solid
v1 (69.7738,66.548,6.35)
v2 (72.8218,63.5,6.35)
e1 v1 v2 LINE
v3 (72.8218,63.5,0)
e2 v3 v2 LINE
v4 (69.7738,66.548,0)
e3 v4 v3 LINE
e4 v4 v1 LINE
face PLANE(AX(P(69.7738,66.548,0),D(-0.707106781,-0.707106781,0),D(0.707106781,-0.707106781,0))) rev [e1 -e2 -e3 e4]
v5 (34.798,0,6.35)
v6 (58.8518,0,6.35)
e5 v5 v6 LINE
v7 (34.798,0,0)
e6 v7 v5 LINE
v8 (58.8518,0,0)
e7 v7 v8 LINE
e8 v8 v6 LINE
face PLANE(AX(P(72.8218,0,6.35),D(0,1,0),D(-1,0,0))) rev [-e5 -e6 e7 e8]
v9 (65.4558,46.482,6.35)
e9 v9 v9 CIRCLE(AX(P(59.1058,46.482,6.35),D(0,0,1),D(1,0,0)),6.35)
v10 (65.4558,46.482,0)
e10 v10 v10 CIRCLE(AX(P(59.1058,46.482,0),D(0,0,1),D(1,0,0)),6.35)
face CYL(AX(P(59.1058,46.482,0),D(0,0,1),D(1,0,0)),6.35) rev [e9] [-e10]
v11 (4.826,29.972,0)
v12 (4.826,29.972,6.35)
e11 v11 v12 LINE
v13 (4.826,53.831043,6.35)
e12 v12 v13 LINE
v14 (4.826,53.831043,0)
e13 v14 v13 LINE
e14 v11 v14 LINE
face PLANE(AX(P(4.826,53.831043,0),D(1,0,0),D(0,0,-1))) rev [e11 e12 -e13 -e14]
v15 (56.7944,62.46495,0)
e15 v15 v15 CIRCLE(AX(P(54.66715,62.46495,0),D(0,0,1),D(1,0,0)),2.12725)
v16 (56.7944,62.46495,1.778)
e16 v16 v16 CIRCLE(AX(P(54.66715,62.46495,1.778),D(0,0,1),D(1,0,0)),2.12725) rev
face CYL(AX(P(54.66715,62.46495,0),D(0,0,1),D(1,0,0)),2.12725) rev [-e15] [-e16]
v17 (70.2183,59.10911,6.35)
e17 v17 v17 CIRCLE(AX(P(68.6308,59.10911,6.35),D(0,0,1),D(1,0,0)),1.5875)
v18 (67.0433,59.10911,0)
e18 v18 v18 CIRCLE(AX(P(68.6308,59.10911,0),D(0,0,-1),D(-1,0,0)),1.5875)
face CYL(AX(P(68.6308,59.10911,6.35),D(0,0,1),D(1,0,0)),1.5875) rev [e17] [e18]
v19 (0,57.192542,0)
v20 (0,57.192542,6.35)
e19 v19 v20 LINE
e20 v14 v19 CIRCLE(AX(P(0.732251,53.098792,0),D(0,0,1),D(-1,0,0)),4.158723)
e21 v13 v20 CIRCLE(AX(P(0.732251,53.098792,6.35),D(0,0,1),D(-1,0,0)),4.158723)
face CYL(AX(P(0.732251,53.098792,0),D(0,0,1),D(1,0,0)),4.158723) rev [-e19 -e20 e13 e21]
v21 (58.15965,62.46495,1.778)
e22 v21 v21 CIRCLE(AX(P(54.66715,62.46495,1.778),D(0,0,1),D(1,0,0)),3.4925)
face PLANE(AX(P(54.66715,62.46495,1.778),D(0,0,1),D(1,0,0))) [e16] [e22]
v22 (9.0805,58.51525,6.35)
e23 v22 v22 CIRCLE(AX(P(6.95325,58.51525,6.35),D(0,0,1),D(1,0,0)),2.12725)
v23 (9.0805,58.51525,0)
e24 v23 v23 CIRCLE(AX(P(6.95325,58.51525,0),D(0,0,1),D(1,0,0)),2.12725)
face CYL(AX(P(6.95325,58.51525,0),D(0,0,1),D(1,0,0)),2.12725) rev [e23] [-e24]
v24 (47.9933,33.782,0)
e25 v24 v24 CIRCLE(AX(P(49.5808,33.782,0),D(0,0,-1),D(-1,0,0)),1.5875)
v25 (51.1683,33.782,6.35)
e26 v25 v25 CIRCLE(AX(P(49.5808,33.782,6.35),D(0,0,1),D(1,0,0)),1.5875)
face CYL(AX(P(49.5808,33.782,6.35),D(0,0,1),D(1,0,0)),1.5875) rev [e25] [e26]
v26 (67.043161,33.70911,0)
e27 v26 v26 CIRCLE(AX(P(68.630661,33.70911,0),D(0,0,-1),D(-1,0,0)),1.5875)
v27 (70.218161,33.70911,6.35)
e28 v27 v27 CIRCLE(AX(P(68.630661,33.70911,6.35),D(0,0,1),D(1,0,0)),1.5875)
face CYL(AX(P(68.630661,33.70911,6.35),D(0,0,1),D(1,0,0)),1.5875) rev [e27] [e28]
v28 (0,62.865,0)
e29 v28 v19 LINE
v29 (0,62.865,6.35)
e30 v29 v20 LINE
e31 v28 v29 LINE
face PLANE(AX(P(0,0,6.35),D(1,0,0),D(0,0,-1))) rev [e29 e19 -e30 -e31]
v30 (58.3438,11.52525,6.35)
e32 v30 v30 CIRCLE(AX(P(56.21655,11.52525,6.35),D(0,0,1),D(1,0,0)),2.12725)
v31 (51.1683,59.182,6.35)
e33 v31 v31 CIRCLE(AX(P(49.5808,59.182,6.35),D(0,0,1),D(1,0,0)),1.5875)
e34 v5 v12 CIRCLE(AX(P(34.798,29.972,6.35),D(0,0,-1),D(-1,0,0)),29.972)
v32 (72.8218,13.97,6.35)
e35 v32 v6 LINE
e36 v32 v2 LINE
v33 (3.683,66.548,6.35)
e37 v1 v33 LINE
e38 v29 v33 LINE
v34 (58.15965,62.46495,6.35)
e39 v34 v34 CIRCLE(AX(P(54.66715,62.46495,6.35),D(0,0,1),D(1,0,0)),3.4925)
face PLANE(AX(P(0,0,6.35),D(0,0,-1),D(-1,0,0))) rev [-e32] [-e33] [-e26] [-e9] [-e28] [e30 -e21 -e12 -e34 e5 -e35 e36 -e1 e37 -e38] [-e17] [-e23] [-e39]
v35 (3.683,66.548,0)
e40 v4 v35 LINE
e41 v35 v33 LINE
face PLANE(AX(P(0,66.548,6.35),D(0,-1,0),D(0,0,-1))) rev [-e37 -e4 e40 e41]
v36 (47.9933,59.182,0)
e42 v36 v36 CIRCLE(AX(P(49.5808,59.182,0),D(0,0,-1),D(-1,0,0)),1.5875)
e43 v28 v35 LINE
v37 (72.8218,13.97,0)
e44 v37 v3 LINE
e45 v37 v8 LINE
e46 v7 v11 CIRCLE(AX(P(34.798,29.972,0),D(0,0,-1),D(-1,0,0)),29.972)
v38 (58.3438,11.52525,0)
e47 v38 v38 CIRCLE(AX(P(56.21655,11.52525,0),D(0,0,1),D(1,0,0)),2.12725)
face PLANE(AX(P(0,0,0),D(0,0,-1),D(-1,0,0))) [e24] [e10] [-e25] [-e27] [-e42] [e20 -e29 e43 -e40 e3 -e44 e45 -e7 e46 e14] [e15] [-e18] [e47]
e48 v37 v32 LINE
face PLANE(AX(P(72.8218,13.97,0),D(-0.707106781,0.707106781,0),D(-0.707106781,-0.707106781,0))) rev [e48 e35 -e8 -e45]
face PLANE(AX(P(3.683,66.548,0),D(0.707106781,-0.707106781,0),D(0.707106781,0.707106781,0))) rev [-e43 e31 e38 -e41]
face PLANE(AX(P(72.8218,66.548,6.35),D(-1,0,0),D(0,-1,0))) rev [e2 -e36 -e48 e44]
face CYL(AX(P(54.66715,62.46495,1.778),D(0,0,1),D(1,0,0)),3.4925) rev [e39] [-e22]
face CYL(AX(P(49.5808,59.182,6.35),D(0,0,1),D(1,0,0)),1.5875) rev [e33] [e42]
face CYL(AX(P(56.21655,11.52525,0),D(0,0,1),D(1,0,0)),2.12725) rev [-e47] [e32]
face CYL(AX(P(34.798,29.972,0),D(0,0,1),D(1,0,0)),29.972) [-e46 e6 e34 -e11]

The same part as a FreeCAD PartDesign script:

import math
import FreeCAD as App
import Part
import Sketcher
from FreeCAD import Vector
Q = App.Units.Quantity


def add_polygon(sketch, points):
    """Adds a closed chain of lines whose ends are joined by coincident constraints."""
    first, n = sketch.GeometryCount, len(points)
    for a, b in zip(points, points[1:] + points[:1]):
        sketch.addGeometry(Part.LineSegment(App.Vector(*a, 0), App.Vector(*b, 0)), False)
    for i in range(n):
        sketch.addConstraint(Sketcher.Constraint("Coincident", first + i, 2, first + (i + 1) % n, 1))

doc = App.newDocument("Part")
params = doc.addObject("Spreadsheet::Sheet", "Params")
for row, (alias, value) in enumerate([
    ("sketch1_height", "2.62 in"),
    ("sketch1_width", "2.867 in"),
    ("pad1_length", "0.25 in"),
    ("sketch2_diameter", "0.5 in"),
    ("sketch6_diameter", "0.275 in"),
    ("pocket5_length", "0.18 in"),
    ("sketch7_diameter", "0.125 in"),
    ("hole_diameter", "0.125 in"),
    ("hole_depth", "1 in"),
    ("sketch8_width", "0.55 in"),
    ("sketch9_width", "0.145 in"),
    ("sketch10_width", "0.19 in"),
    ("sketch11_radius", "1.18 in"),
    ("sketch12_width", "0.12 in"),
], start=1):
    params.set(f"A{row}", alias)
    params.set(f"B{row}", "=" + value)
    params.setAlias(f"B{row}", alias)

body = doc.addObject("PartDesign::Body", "Body")

sketch1 = body.newObject("Sketcher::SketchObject", "Sketch")
sketch1.AttachmentSupport = (doc.getObject("XY_Plane"), [""])
sketch1.MapMode = "FlatFace"
add_polygon(sketch1, [(0, 67), (0, 0), (73, 0), (73, 67)])
sketch1.addConstraint([
    Sketcher.Constraint("Vertical", 0),
    Sketcher.Constraint("Horizontal", 1),
    Sketcher.Constraint("Vertical", 2),
    Sketcher.Constraint("Horizontal", 3),
    Sketcher.Constraint("Coincident", 0, 2, -1, 1),
    Sketcher.Constraint("DistanceY", 0, 2, 0, 1, Q("2.62 in")),
    Sketcher.Constraint("DistanceX", 1, 1, 1, 2, Q("2.867 in")),
])
sketch1.setExpression("Constraints[9]", "Params.sketch1_height")
sketch1.setExpression("Constraints[10]", "Params.sketch1_width")
pad1 = body.newObject("PartDesign::Pad", "Pad")
pad1.Profile = sketch1
pad1.setExpression("Length", "Params.pad1_length")

sketch2 = body.newObject("Sketcher::SketchObject", "Sketch001")
sketch2.AttachmentSupport = (doc.getObject("XY_Plane"), [""])
sketch2.MapMode = "FlatFace"
sketch2.AttachmentOffset = App.Placement(Vector(0, 0, 0.25 * 25.4), App.Rotation())
sketch2.addGeometry(Part.Circle(Vector(59, 46, 0), Vector(0, 0, 1), 6), False)
sketch2.addConstraint([
    Sketcher.Constraint("Diameter", 0, Q("0.5 in")),
    Sketcher.Constraint("DistanceY", -1, 1, 0, 3, Q("1.83 in")),
    Sketcher.Constraint("DistanceX", -1, 1, 0, 3, Q("2.327 in")),
])
sketch2.setExpression("Constraints[0]", "Params.sketch2_diameter")
pocket1 = body.newObject("PartDesign::Pocket", "Pocket")
pocket1.Profile = sketch2
pocket1.Type = "ThroughAll"

sketch3 = body.newObject("Sketcher::SketchObject", "Sketch002")
sketch3.AttachmentSupport = (doc.getObject("XY_Plane"), [""])
sketch3.MapMode = "FlatFace"
sketch3.AttachmentOffset = App.Placement(Vector(0, 0, 0.25 * 25.4), App.Rotation())
sketch3.addGeometry(Part.Circle(Vector(56.2, 11.5, 0), Vector(0, 0, 1), 2.1), False)
sketch3.addConstraint([
    Sketcher.Constraint("Diameter", 0, Q("0.1675 in")),
    Sketcher.Constraint("DistanceX", -1, 1, 0, 3, Q("56.21655 mm")),
    Sketcher.Constraint("DistanceY", -1, 1, 0, 3, Q("11.52525 mm")),
])
pocket2 = body.newObject("PartDesign::Pocket", "Pocket001")
pocket2.Profile = sketch3
pocket2.Type = "ThroughAll"

sketch4 = body.newObject("Sketcher::SketchObject", "Sketch003")
sketch4.AttachmentSupport = (doc.getObject("XY_Plane"), [""])
sketch4.MapMode = "FlatFace"
sketch4.AttachmentOffset = App.Placement(Vector(0, 0, 0.25 * 25.4), App.Rotation())
sketch4.addGeometry(Part.Circle(Vector(7, 58.5, 0), Vector(0, 0, 1), 2.1), False)
sketch4.addConstraint([
    Sketcher.Constraint("Diameter", 0, Q("0.1675 in")),
    Sketcher.Constraint("DistanceX", -1, 1, 0, 3, Q("6.95325 mm")),
    Sketcher.Constraint("DistanceY", -1, 1, 0, 3, Q("58.51525 mm")),
])
pocket3 = body.newObject("PartDesign::Pocket", "Pocket002")
pocket3.Profile = sketch4
pocket3.Type = "ThroughAll"

sketch5 = body.newObject("Sketcher::SketchObject", "Sketch004")
sketch5.AttachmentSupport = (doc.getObject("XY_Plane"), [""])
sketch5.MapMode = "FlatFace"
sketch5.AttachmentOffset = App.Placement(Vector(0, 0, 0.25 * 25.4), App.Rotation())
sketch5.addGeometry(Part.Circle(Vector(54.7, 62.5, 0), Vector(0, 0, 1), 2.1), False)
sketch5.addConstraint([
    Sketcher.Constraint("Diameter", 0, Q("0.1675 in")),
    Sketcher.Constraint("DistanceX", -1, 1, 0, 3, Q("54.66715 mm")),
    Sketcher.Constraint("DistanceY", -1, 1, 0, 3, Q("62.46495 mm")),
])
pocket4 = body.newObject("PartDesign::Pocket", "Pocket003")
pocket4.Profile = sketch5
pocket4.Type = "ThroughAll"

sketch6 = body.newObject("Sketcher::SketchObject", "Sketch005")
sketch6.AttachmentSupport = (doc.getObject("XY_Plane"), [""])
sketch6.MapMode = "FlatFace"
sketch6.AttachmentOffset = App.Placement(Vector(0, 0, 0.25 * 25.4), App.Rotation())
sketch6.addGeometry(Part.Circle(Vector(54.7, 62.5, 0), Vector(0, 0, 1), 3.5), False)
sketch6.addConstraint([
    Sketcher.Constraint("Diameter", 0, Q("0.275 in")),
    Sketcher.Constraint("DistanceX", -1, 1, 0, 3, Q("54.66715 mm")),
    Sketcher.Constraint("DistanceY", -1, 1, 0, 3, Q("62.46495 mm")),
])
sketch6.setExpression("Constraints[0]", "Params.sketch6_diameter")
pocket5 = body.newObject("PartDesign::Pocket", "Pocket004")
pocket5.Profile = sketch6
pocket5.setExpression("Length", "Params.pocket5_length")

sketch7 = body.newObject("Sketcher::SketchObject", "Sketch006")
sketch7.AttachmentSupport = (doc.getObject("XY_Plane"), [""])
sketch7.MapMode = "FlatFace"
sketch7.AttachmentOffset = App.Placement(Vector(0, 0, 0.25 * 25.4), App.Rotation())
sketch7.addGeometry([
    Part.Circle(Vector(49.6, 59.2, 0), Vector(0, 0, 1), 1.6),
    Part.Circle(Vector(68.6, 59.1, 0), Vector(0, 0, 1), 1.6),
    Part.Circle(Vector(68.6, 33.7, 0), Vector(0, 0, 1), 1.6),
    Part.Circle(Vector(49.6, 33.8, 0), Vector(0, 0, 1), 1.6),
], False)
sketch7.addConstraint([
    Sketcher.Constraint("Equal", 0, 1),
    Sketcher.Constraint("Equal", 1, 2),
    Sketcher.Constraint("Equal", 2, 3),
    Sketcher.Constraint("Vertical", 0, 3, 3, 3),
    Sketcher.Constraint("Diameter", 0, Q("0.125 in")),
    Sketcher.Constraint("DistanceY", 2, 3, 1, 3, Q("1 in")),
    Sketcher.Constraint("DistanceY", 3, 3, 0, 3, Q("1 in")),
    Sketcher.Constraint("DistanceY", -1, 1, 0, 3, Q("2.33 in")),
    Sketcher.Constraint("DistanceX", 0, 3, 1, 3, Q("0.75 in")),
    Sketcher.Constraint("DistanceX", -1, 1, 0, 3, Q("1.952 in")),
    Sketcher.Constraint("DistanceY", -1, 1, 1, 3, Q("59.10911 mm")),
    Sketcher.Constraint("DistanceX", -1, 1, 2, 3, Q("68.630661 mm")),
])
sketch7.setExpression("Constraints[4]", "Params.sketch7_diameter")
doc.recompute()
hole = body.newObject("PartDesign::Hole", "Hole")
hole.Profile = sketch7
hole.ThreadType = "None"
hole.setExpression("Diameter", "Params.hole_diameter")
hole.DepthType = "Dimension"
hole.setExpression("Depth", "Params.hole_depth")
hole.DrillPoint = "Angled"
hole.DrillPointAngle = 118

sketch8 = body.newObject("Sketcher::SketchObject", "Sketch007")
sketch8.AttachmentSupport = (doc.getObject("XY_Plane"), [""])
sketch8.MapMode = "FlatFace"
sketch8.AttachmentOffset = App.Placement(Vector(0, 0, 0.25 * 25.4), App.Rotation())
add_polygon(sketch8, [(73, 14), (59, 0), (73, 0)])
sketch8.addConstraint([
    Sketcher.Constraint("Horizontal", 1),
    Sketcher.Constraint("Vertical", 2),
    Sketcher.Constraint("PointOnObject", 0, 2, -1),
    Sketcher.Constraint("Equal", 1, 2),
    Sketcher.Constraint("DistanceX", 1, 1, 1, 2, Q("0.55 in")),
    Sketcher.Constraint("DistanceX", -1, 1, 0, 2, Q("2.317 in")),
])
sketch8.setExpression("Constraints[7]", "Params.sketch8_width")
pocket6 = body.newObject("PartDesign::Pocket", "Pocket005")
pocket6.Profile = sketch8
pocket6.Type = "ThroughAll"

sketch9 = body.newObject("Sketcher::SketchObject", "Sketch008")
sketch9.AttachmentSupport = (doc.getObject("XY_Plane"), [""])
sketch9.MapMode = "FlatFace"
sketch9.AttachmentOffset = App.Placement(Vector(0, 0, 0.25 * 25.4), App.Rotation())
add_polygon(sketch9, [(0, 62.9), (3.7, 66.5), (0, 66.5)])
sketch9.addConstraint([
    Sketcher.Constraint("Horizontal", 1),
    Sketcher.Constraint("Vertical", 2),
    Sketcher.Constraint("PointOnObject", 1, 2, -2),
    Sketcher.Constraint("Equal", 1, 2),
    Sketcher.Constraint("DistanceX", 1, 2, 1, 1, Q("0.145 in")),
    Sketcher.Constraint("DistanceY", -1, 1, 0, 2, Q("2.62 in")),
])
sketch9.setExpression("Constraints[7]", "Params.sketch9_width")
pocket7 = body.newObject("PartDesign::Pocket", "Pocket006")
pocket7.Profile = sketch9
pocket7.Type = "ThroughAll"

sketch10 = body.newObject("Sketcher::SketchObject", "Sketch009")
sketch10.AttachmentSupport = (doc.getObject("XY_Plane"), [""])
sketch10.MapMode = "FlatFace"
sketch10.AttachmentOffset = App.Placement(Vector(0, 0, 0.25 * 25.4), App.Rotation())
sketch10.addGeometry([
    Part.LineSegment(Vector(4.8, 0, 0), Vector(4.8, 53.8, 0)),
    Part.ArcOfCircle(Part.Circle(Vector(0.7, 53.1, 0), Vector(0, 0, 1), 4.2), math.radians(10), math.radians(100)),
    Part.LineSegment(Vector(0, 57.2, 0), Vector(0, 0, 0)),
    Part.LineSegment(Vector(0, 0, 0), Vector(4.8, 0, 0)),
], False)
sketch10.addConstraint([
    Sketcher.Constraint("Coincident", 0, 2, 1, 1),
    Sketcher.Constraint("Coincident", 1, 2, 2, 1),
    Sketcher.Constraint("Coincident", 2, 2, 3, 1),
    Sketcher.Constraint("Coincident", 3, 2, 0, 1),
    Sketcher.Constraint("Vertical", 0),
    Sketcher.Constraint("Vertical", 2),
    Sketcher.Constraint("Horizontal", 3),
    Sketcher.Constraint("Coincident", 2, 2, -1, 1),
    Sketcher.Constraint("DistanceX", 3, 1, 3, 2, Q("0.19 in")),
    Sketcher.Constraint("Radius", 1, Q("4.158723 mm")),
    Sketcher.Constraint("DistanceY", 2, 2, 2, 1, Q("57.192542 mm")),
    Sketcher.Constraint("DistanceY", 0, 2, 1, 2, Q("3.361498 mm")),
])
sketch10.setExpression("Constraints[8]", "Params.sketch10_width")
pocket8 = body.newObject("PartDesign::Pocket", "Pocket007")
pocket8.Profile = sketch10
pocket8.Type = "ThroughAll"

sketch11 = body.newObject("Sketcher::SketchObject", "Sketch010")
sketch11.AttachmentSupport = (doc.getObject("XY_Plane"), [""])
sketch11.MapMode = "FlatFace"
sketch11.AttachmentOffset = App.Placement(Vector(0, 0, 0.25 * 25.4), App.Rotation())
sketch11.addGeometry([
    Part.LineSegment(Vector(5, 30, 0), Vector(5, 0, 0)),
    Part.LineSegment(Vector(5, 0, 0), Vector(35, 0, 0)),
    Part.ArcOfCircle(Part.Circle(Vector(35, 30, 0), Vector(0, 0, 1), 30), math.radians(180), math.radians(270)),
], False)
sketch11.addConstraint([
    Sketcher.Constraint("Coincident", 0, 2, 1, 1),
    Sketcher.Constraint("Tangent", 1, 2, 2, 2),
    Sketcher.Constraint("Tangent", 2, 1, 0, 1),
    Sketcher.Constraint("Vertical", 0),
    Sketcher.Constraint("Horizontal", 1),
    Sketcher.Constraint("PointOnObject", 0, 2, -1),
    Sketcher.Constraint("Radius", 2, Q("1.18 in")),
    Sketcher.Constraint("DistanceX", -1, 1, 2, 3, Q("1.37 in")),
])
sketch11.setExpression("Constraints[6]", "Params.sketch11_radius")
pocket9 = body.newObject("PartDesign::Pocket", "Pocket008")
pocket9.Profile = sketch11
pocket9.Type = "ThroughAll"

sketch12 = body.newObject("Sketcher::SketchObject", "Sketch011")
sketch12.AttachmentSupport = (doc.getObject("XY_Plane"), [""])
sketch12.MapMode = "FlatFace"
sketch12.AttachmentOffset = App.Placement(Vector(0, 0, 0.25 * 25.4), App.Rotation())
add_polygon(sketch12, [(69.8, 66.5), (72.8, 63.5), (72.8, 66.5)])
sketch12.addConstraint([
    Sketcher.Constraint("Vertical", 1),
    Sketcher.Constraint("Horizontal", 2),
    Sketcher.Constraint("Equal", 2, 1),
    Sketcher.Constraint("DistanceX", 2, 2, 2, 1, Q("0.12 in")),
    Sketcher.Constraint("DistanceY", -1, 1, 0, 2, Q("2.5 in")),
    Sketcher.Constraint("DistanceX", -1, 1, 0, 2, Q("2.867 in")),
])
sketch12.setExpression("Constraints[6]", "Params.sketch12_width")
pocket10 = body.newObject("PartDesign::Pocket", "Pocket009")
pocket10.Profile = sketch12
pocket10.Type = "ThroughAll"

doc.recompute()
